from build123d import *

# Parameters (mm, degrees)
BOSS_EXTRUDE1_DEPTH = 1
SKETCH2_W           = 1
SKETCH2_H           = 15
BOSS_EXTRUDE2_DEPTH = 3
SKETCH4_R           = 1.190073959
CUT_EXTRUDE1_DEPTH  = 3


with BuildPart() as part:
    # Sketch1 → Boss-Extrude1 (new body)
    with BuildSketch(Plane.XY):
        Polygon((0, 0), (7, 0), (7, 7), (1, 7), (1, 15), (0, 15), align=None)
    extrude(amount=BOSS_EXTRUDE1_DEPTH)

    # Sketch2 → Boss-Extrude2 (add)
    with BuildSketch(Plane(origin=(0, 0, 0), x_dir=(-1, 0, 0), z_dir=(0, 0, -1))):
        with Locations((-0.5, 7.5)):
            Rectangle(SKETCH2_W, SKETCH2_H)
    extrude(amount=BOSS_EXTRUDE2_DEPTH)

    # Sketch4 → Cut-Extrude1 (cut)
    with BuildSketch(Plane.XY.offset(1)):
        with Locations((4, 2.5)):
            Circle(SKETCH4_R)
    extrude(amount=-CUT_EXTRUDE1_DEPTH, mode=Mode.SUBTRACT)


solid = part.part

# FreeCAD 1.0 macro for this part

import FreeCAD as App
import Part
import Sketcher

V = App.Vector


def add_polygon(sketch, points):
    """Adds a closed chain of lines whose ends are joined by coincident constraints."""
    first, n = sketch.GeometryCount, len(points)
    for a, b in zip(points, points[1:] + points[:1]):
        sketch.addGeometry(Part.LineSegment(App.Vector(*a, 0), App.Vector(*b, 0)), False)
    for i in range(n):
        sketch.addConstraint(Sketcher.Constraint("Coincident", first + i, 2, first + (i + 1) % n, 1))

doc = App.newDocument("Part")
body = doc.addObject("PartDesign::Body", "Body")

sketch1 = doc.addObject("Sketcher::SketchObject", "Sketch")
body.addObject(sketch1)
sketch1.AttachmentSupport = (doc.XY_Plane, [""])
sketch1.MapMode = "FlatFace"
add_polygon(sketch1, [(0, 0), (7, 0), (7, 7), (1, 7), (1, 15), (0, 15)])
sketch1.addConstraint(Sketcher.Constraint("Horizontal", 0))
sketch1.addConstraint(Sketcher.Constraint("Vertical", 1))
sketch1.addConstraint(Sketcher.Constraint("Horizontal", 2))
sketch1.addConstraint(Sketcher.Constraint("Vertical", 3))
sketch1.addConstraint(Sketcher.Constraint("Horizontal", 4))
sketch1.addConstraint(Sketcher.Constraint("Vertical", 5))
sketch1.addConstraint(Sketcher.Constraint("Coincident", 5, 2, -1, 1))
sketch1.addConstraint(Sketcher.Constraint("Equal", 0, 1))
sketch1.addConstraint(Sketcher.Constraint("DistanceX", 0, 1, 0, 2, 7.0))
sketch1.addConstraint(Sketcher.Constraint("DistanceX", 2, 2, 2, 1, 6.0))
sketch1.addConstraint(Sketcher.Constraint("DistanceY", 3, 1, 3, 2, 8.0))
pad1 = doc.addObject("PartDesign::Pad", "Pad")
body.addObject(pad1)
pad1.Profile = sketch1
pad1.Length = 1

sketch2 = doc.addObject("Sketcher::SketchObject", "Sketch001")
body.addObject(sketch2)
sketch2.AttachmentSupport = (doc.XY_Plane, [""])
sketch2.MapMode = "FlatFace"
add_polygon(sketch2, [(1, 15), (1, 0), (0, 0), (0, 15)])
sketch2.addConstraint(Sketcher.Constraint("Vertical", 0))
sketch2.addConstraint(Sketcher.Constraint("Horizontal", 1))
sketch2.addConstraint(Sketcher.Constraint("Vertical", 2))
sketch2.addConstraint(Sketcher.Constraint("Horizontal", 3))
sketch2.addConstraint(Sketcher.Constraint("Coincident", 1, 2, -1, 1))
sketch2.addConstraint(Sketcher.Constraint("DistanceX", 1, 2, 1, 1, 1.0))
sketch2.addConstraint(Sketcher.Constraint("DistanceY", 0, 2, 0, 1, 15.0))
pad2 = doc.addObject("PartDesign::Pad", "Pad001")
body.addObject(pad2)
pad2.Profile = sketch2
pad2.Length = 3
pad2.Reversed = True

sketch3 = doc.addObject("Sketcher::SketchObject", "Sketch002")
body.addObject(sketch3)
sketch3.AttachmentSupport = (doc.XY_Plane, [""])
sketch3.MapMode = "FlatFace"
sketch3.AttachmentOffset = App.Placement(V(0, 0, 1), App.Rotation())
sketch3.addGeometry(Part.Circle(V(4, 2.5, 0), V(0, 0, 1), 1.190074), False)
sketch3.addConstraint(Sketcher.Constraint("DistanceX", -1, 1, 0, 3, 4.0))
sketch3.addConstraint(Sketcher.Constraint("DistanceY", -1, 1, 0, 3, 2.5))
sketch3.addConstraint(Sketcher.Constraint("Diameter", 0, 2.380148))
pocket1 = doc.addObject("PartDesign::Pocket", "Pocket")
body.addObject(pocket1)
pocket1.Profile = sketch3
pocket1.Length = 3

doc.recompute()
